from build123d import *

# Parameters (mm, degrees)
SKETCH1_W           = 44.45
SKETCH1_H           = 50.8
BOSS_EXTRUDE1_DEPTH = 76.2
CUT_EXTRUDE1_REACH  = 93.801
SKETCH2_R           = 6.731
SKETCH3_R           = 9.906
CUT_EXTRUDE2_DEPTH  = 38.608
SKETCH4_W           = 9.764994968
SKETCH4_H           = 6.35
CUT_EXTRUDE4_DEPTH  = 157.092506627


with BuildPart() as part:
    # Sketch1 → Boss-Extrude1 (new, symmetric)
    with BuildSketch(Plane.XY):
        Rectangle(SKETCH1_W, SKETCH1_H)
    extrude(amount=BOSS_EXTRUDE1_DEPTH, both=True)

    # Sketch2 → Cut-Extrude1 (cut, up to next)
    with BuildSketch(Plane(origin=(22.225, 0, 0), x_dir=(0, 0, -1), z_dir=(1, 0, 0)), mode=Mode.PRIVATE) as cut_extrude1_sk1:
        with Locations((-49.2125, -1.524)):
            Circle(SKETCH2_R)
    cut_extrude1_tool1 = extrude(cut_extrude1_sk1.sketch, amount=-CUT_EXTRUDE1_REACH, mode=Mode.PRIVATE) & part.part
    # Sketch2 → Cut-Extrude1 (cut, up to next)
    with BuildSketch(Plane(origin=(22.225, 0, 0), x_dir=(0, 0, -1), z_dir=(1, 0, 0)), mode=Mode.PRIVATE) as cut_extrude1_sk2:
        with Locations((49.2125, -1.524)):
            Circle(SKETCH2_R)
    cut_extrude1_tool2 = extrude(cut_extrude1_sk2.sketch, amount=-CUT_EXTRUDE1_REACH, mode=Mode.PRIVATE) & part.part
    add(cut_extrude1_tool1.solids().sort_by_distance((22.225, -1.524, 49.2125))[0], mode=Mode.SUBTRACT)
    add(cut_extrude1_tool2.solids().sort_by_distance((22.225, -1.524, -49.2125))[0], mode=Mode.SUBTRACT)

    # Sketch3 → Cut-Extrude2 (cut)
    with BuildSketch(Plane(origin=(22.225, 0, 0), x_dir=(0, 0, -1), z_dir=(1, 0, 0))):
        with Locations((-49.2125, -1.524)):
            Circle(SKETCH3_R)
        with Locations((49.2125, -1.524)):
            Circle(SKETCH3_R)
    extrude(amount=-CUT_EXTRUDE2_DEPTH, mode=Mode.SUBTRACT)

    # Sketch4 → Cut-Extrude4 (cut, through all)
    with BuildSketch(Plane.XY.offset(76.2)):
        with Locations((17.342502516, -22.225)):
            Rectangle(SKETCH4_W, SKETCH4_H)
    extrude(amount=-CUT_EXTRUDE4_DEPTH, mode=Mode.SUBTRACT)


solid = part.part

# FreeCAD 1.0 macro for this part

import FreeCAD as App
import Part
import Sketcher

V = App.Vector
Q = App.Units.Quantity


def add_polygon(sketch, points):
    """Adds a closed chain of lines whose ends are joined by coincident constraints."""
    first, n = sketch.GeometryCount, len(points)
    for a, b in zip(points, points[1:] + points[:1]):
        sketch.addGeometry(Part.LineSegment(App.Vector(*a, 0), App.Vector(*b, 0)), False)
    for i in range(n):
        sketch.addConstraint(Sketcher.Constraint("Coincident", first + i, 2, first + (i + 1) % n, 1))

doc = App.newDocument("Part")
body = doc.addObject("PartDesign::Body", "Body")

sketch1 = body.newObject("Sketcher::SketchObject", "Sketch")
sketch1.AttachmentSupport = (doc.getObject("XY_Plane"), [""])
sketch1.MapMode = "FlatFace"
add_polygon(sketch1, [(-22.225, 25.4), (-22.225, -25.4), (22.225, -25.4), (22.225, 25.4)])
sketch1.addConstraint([
    Sketcher.Constraint("Vertical", 0),
    Sketcher.Constraint("Horizontal", 1),
    Sketcher.Constraint("Vertical", 2),
    Sketcher.Constraint("Horizontal", 3),
    Sketcher.Constraint("Symmetric", 0, 2, 2, 2, -1, 1),
    Sketcher.Constraint("DistanceY", 0, 2, 0, 1, Q("2 in")),
    Sketcher.Constraint("DistanceX", 1, 1, 1, 2, Q("1.75 in")),
])
pad1 = body.newObject("PartDesign::Pad", "Pad")
pad1.Profile = sketch1
pad1.Length = Q("6 in")
pad1.Midplane = True

sketch2 = body.newObject("Sketcher::SketchObject", "Sketch001")
sketch2.AttachmentSupport = (doc.getObject("YZ_Plane"), [""])
sketch2.MapMode = "FlatFace"
sketch2.AttachmentOffset = App.Placement(V(0, 0, 0.875 * 25.4), App.Rotation())
sketch2.addGeometry(Part.Circle(V(-1.524, 49.2125, 0), V(0, 0, 1), 6.731), False)
sketch2.addConstraint([
    Sketcher.Constraint("Diameter", 0, Q("0.53 in")),
    Sketcher.Constraint("DistanceX", 0, 3, -1, 1, Q("0.06 in")),
    Sketcher.Constraint("DistanceY", -1, 1, 0, 3, Q("1.9375 in")),
])
pocket1 = body.newObject("PartDesign::Pocket", "Pocket")
pocket1.Profile = sketch2
pocket1.Type = "UpToFirst"

sketch3 = body.newObject("Sketcher::SketchObject", "Sketch002")
sketch3.AttachmentSupport = (doc.getObject("YZ_Plane"), [""])
sketch3.MapMode = "FlatFace"
sketch3.AttachmentOffset = App.Placement(V(0, 0, 0.875 * 25.4), App.Rotation())
sketch3.addGeometry(Part.Circle(V(-1.524, -49.2125, 0), V(0, 0, 1), 6.731), False)
sketch3.addConstraint([
    Sketcher.Constraint("Diameter", 0, Q("0.53 in")),
    Sketcher.Constraint("DistanceX", 0, 3, -1, 1, Q("0.06 in")),
    Sketcher.Constraint("DistanceY", 0, 3, -1, 1, Q("1.9375 in")),
])
pocket2 = body.newObject("PartDesign::Pocket", "Pocket001")
pocket2.Profile = sketch3
pocket2.Type = "UpToFirst"

sketch4 = body.newObject("Sketcher::SketchObject", "Sketch003")
sketch4.AttachmentSupport = (doc.getObject("YZ_Plane"), [""])
sketch4.MapMode = "FlatFace"
sketch4.AttachmentOffset = App.Placement(V(0, 0, 0.875 * 25.4), App.Rotation())
sketch4.addGeometry([
    Part.Circle(V(-1.524, 49.2125, 0), V(0, 0, 1), 9.906),
    Part.Circle(V(-1.524, -49.2125, 0), V(0, 0, 1), 9.906),
], False)
sketch4.addConstraint([
    Sketcher.Constraint("Equal", 0, 1),
    Sketcher.Constraint("Symmetric", 0, 3, 1, 3, -1),
    Sketcher.Constraint("Diameter", 0, Q("0.78 in")),
    Sketcher.Constraint("DistanceX", 0, 3, -1, 1, Q("0.06 in")),
    Sketcher.Constraint("DistanceY", -1, 1, 0, 3, Q("1.9375 in")),
])
pocket3 = body.newObject("PartDesign::Pocket", "Pocket002")
pocket3.Profile = sketch4
pocket3.Length = Q("1.52 in")

sketch5 = body.newObject("Sketcher::SketchObject", "Sketch004")
sketch5.AttachmentSupport = (doc.getObject("XY_Plane"), [""])
sketch5.MapMode = "FlatFace"
sketch5.AttachmentOffset = App.Placement(V(0, 0, 3 * 25.4), App.Rotation())
add_polygon(sketch5, [(12.460005, -19.05), (12.460005, -25.4), (22.225, -25.4), (22.225, -19.05)])
sketch5.addConstraint([
    Sketcher.Constraint("Vertical", 0),
    Sketcher.Constraint("Horizontal", 1),
    Sketcher.Constraint("Vertical", 2),
    Sketcher.Constraint("Horizontal", 3),
    Sketcher.Constraint("DistanceY", 0, 2, -1, 1, Q("1 in")),
    Sketcher.Constraint("DistanceY", 0, 2, 0, 1, Q("0.25 in")),
    Sketcher.Constraint("DistanceX", -1, 1, 1, 2, Q("0.875 in")),
    Sketcher.Constraint("DistanceX", 1, 1, 1, 2, 9.764995),
])
pocket4 = body.newObject("PartDesign::Pocket", "Pocket003")
pocket4.Profile = sketch5
pocket4.Type = "ThroughAll"

doc.recompute()
